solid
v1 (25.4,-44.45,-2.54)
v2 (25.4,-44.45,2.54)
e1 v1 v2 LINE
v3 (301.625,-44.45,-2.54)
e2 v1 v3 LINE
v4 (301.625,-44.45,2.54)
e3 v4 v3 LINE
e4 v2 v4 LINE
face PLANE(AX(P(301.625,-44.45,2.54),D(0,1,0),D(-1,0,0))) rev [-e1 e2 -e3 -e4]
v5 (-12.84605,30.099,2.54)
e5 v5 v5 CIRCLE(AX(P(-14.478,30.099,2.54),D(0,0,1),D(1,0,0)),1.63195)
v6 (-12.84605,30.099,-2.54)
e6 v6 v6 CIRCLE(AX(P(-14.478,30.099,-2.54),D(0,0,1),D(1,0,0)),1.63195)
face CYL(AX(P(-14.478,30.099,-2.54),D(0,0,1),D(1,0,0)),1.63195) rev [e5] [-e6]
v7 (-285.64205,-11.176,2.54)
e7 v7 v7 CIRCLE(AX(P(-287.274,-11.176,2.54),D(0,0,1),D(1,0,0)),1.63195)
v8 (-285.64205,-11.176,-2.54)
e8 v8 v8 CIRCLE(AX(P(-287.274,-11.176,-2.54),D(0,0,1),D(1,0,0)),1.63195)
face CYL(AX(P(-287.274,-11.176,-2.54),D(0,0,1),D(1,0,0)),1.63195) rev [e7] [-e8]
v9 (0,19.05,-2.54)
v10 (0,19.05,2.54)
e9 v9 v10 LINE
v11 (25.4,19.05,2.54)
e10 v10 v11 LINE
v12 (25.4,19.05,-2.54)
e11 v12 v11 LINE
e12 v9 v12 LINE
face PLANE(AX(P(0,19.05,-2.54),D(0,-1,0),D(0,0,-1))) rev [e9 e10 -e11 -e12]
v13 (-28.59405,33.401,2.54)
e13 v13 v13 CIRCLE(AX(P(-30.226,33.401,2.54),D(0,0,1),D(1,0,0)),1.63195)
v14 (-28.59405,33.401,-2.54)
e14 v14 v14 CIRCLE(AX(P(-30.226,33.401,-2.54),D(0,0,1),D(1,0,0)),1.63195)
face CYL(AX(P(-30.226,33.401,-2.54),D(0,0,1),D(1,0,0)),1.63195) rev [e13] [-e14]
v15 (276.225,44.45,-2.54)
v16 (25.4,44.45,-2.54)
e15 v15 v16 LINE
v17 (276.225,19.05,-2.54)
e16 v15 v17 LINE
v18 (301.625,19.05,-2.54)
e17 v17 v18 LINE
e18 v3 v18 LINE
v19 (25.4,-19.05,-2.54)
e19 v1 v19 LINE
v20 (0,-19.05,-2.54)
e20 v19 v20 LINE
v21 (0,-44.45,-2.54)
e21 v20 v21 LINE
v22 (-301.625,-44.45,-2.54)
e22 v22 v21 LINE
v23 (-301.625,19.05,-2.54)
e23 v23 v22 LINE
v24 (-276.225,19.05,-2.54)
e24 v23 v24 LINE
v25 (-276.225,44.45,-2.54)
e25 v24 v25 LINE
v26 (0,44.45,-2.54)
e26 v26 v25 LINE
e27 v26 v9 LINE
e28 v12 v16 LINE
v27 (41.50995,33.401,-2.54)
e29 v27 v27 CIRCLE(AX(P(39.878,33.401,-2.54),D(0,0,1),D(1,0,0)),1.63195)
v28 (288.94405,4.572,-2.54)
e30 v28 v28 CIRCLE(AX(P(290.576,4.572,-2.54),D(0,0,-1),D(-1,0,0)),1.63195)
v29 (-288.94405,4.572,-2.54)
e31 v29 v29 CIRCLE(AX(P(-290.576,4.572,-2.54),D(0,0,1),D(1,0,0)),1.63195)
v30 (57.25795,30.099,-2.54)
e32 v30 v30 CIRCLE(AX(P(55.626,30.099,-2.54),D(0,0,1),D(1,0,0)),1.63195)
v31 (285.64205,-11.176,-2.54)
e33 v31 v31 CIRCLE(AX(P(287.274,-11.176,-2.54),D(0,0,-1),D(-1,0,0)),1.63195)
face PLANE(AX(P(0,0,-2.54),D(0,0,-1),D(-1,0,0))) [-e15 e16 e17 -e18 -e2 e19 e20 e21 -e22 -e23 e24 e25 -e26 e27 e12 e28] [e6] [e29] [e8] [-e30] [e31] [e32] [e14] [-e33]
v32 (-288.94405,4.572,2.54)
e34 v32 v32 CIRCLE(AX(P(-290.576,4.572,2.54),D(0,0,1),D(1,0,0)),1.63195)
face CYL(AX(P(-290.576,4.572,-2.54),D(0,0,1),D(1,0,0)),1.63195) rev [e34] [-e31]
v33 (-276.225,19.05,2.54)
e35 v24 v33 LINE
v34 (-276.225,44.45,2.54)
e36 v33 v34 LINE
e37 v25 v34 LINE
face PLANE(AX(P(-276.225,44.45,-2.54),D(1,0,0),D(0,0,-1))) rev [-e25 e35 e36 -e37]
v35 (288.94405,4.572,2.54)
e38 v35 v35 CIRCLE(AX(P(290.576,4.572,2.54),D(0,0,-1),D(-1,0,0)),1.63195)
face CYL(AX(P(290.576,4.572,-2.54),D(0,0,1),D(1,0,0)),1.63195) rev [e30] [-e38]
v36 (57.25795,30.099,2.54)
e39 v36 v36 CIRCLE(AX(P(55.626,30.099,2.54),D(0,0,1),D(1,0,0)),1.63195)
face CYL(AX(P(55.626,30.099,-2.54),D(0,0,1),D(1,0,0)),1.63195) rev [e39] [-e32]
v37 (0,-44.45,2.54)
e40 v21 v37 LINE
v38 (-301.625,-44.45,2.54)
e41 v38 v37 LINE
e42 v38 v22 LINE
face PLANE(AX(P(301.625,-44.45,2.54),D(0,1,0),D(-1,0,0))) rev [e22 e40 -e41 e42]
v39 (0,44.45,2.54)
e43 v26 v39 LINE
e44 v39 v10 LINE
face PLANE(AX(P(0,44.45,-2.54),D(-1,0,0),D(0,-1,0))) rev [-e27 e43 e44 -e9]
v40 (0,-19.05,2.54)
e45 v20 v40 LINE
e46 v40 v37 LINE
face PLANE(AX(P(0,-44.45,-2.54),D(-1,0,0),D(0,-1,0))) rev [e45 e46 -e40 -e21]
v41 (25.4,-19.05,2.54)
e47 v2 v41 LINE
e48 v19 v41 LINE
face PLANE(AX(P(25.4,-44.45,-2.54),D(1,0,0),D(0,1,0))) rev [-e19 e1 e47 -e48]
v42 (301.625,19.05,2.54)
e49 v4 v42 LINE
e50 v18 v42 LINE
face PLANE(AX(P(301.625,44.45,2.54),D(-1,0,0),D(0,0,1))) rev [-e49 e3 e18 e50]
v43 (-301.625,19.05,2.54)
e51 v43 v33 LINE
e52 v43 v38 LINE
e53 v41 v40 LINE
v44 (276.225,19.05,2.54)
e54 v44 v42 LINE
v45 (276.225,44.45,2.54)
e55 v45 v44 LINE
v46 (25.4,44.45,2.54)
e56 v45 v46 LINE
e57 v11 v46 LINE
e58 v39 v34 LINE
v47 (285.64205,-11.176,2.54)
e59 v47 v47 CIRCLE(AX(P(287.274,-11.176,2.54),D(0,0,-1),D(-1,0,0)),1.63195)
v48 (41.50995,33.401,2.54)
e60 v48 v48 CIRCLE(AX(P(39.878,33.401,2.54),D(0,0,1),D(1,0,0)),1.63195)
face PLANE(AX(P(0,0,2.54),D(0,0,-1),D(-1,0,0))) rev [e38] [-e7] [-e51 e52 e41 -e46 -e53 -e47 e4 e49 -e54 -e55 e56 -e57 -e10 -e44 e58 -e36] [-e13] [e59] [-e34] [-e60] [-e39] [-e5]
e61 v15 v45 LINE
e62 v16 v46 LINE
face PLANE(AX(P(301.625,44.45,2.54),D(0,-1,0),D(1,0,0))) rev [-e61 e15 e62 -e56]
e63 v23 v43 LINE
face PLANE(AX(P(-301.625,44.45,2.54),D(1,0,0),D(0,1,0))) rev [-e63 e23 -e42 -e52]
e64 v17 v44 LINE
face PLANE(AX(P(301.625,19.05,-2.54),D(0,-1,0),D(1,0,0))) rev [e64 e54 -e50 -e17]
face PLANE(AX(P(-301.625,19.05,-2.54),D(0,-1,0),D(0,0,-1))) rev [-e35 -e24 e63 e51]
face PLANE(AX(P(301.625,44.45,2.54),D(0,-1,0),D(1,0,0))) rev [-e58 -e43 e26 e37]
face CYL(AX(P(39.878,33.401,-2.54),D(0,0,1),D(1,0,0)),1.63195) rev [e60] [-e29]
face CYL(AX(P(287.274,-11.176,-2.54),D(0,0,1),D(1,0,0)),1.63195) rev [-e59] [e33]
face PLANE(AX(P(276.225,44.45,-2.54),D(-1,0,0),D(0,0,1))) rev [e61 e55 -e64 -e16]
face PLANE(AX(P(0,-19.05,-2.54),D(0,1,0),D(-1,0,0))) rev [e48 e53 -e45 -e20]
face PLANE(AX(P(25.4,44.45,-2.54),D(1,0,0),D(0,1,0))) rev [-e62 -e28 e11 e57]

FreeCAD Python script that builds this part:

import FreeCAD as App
import Part
import Sketcher
Q = App.Units.Quantity


def add_polygon(sketch, points):
    """Adds a closed chain of lines whose ends are joined by coincident constraints."""
    first, n = sketch.GeometryCount, len(points)
    for a, b in zip(points, points[1:] + points[:1]):
        sketch.addGeometry(Part.LineSegment(App.Vector(*a, 0), App.Vector(*b, 0)), False)
    for i in range(n):
        sketch.addConstraint(Sketcher.Constraint("Coincident", first + i, 2, first + (i + 1) % n, 1))

doc = App.newDocument("Part")
params = doc.addObject("Spreadsheet::Sheet", "Params")
for row, (alias, value) in enumerate([
    ("sketch1_height", "3.5 in"),
    ("sketch1_width", "23.75 in"),
    ("pad1_length", "0.2 in"),
    ("sketch2_width", "1 in"),
    ("pocket1_length", "0.2 in"),
    ("pocket2_length", "0.2 in"),
    ("pocket3_length", "0.2 in"),
    ("linearpattern_pitch", "2.76 in"),
], start=1):
    params.set(f"A{row}", alias)
    params.set(f"B{row}", "=" + value)
    params.setAlias(f"B{row}", alias)

body = doc.addObject("PartDesign::Body", "Body")

# Sketch on XY plane
sketch1 = body.newObject("Sketcher::SketchObject", "Sketch")
sketch1.AttachmentSupport = (doc.getObject("XY_Plane"), [""])
sketch1.MapMode = "FlatFace"
add_polygon(sketch1, [(-301.625, 44.45), (-301.625, -44.45), (301.625, -44.45), (301.625, 44.45)])  # lines 0-3
sketch1.addConstraint(Sketcher.Constraint("Vertical", 0))
sketch1.addConstraint(Sketcher.Constraint("Horizontal", 1))
sketch1.addConstraint(Sketcher.Constraint("Vertical", 2))
sketch1.addConstraint(Sketcher.Constraint("Horizontal", 3))
sketch1.addConstraint(Sketcher.Constraint("Symmetric", 0, 2, 2, 2, -1, 1))
sketch1.addConstraint(Sketcher.Constraint("DistanceY", 0, 2, 0, 1, Q("3.5 in")))
sketch1.addConstraint(Sketcher.Constraint("DistanceX", 1, 1, 1, 2, Q("23.75 in")))
sketch1.setExpression("Constraints[9]", "Params.sketch1_height")
sketch1.setExpression("Constraints[10]", "Params.sketch1_width")
pad1 = body.newObject("PartDesign::Pad", "Pad")
pad1.Profile = sketch1
pad1.setExpression("Length", "Params.pad1_length")
pad1.Midplane = True

# Sketch on XY plane
sketch2 = body.newObject("Sketcher::SketchObject", "Sketch001")
sketch2.AttachmentSupport = (doc.getObject("XY_Plane"), [""])
sketch2.MapMode = "FlatFace"
sketch2.AttachmentOffset = App.Placement(App.Vector(0, 0, 0.1 * 25.4), App.Rotation())
add_polygon(sketch2, [(-301.625, 44.45), (-301.625, 19.05), (-276.225, 19.05), (-276.225, 44.45)])  # lines 0-3
add_polygon(sketch2, [(276.225, 44.45), (276.225, 19.05), (301.625, 19.05), (301.625, 44.45)])  # lines 4-7
add_polygon(sketch2, [(0, 44.45), (0, 19.05), (25.4, 19.05), (25.4, 44.45)])  # lines 8-11
add_polygon(sketch2, [(0, -19.05), (0, -44.45), (25.4, -44.45), (25.4, -19.05)])  # lines 12-15
sketch2.addConstraint(Sketcher.Constraint("Vertical", 0))
sketch2.addConstraint(Sketcher.Constraint("Horizontal", 1))
sketch2.addConstraint(Sketcher.Constraint("Vertical", 2))
sketch2.addConstraint(Sketcher.Constraint("Horizontal", 3))
sketch2.addConstraint(Sketcher.Constraint("Vertical", 4))
sketch2.addConstraint(Sketcher.Constraint("Horizontal", 5))
sketch2.addConstraint(Sketcher.Constraint("Vertical", 6))
sketch2.addConstraint(Sketcher.Constraint("Horizontal", 7))
sketch2.addConstraint(Sketcher.Constraint("Vertical", 8))
sketch2.addConstraint(Sketcher.Constraint("Horizontal", 9))
sketch2.addConstraint(Sketcher.Constraint("Vertical", 10))
sketch2.addConstraint(Sketcher.Constraint("Horizontal", 11))
sketch2.addConstraint(Sketcher.Constraint("Vertical", 12))
sketch2.addConstraint(Sketcher.Constraint("Horizontal", 13))
sketch2.addConstraint(Sketcher.Constraint("Vertical", 14))
sketch2.addConstraint(Sketcher.Constraint("Horizontal", 15))
sketch2.addConstraint(Sketcher.Constraint("Symmetric", 11, 2, 12, 2, -1, 1))
sketch2.addConstraint(Sketcher.Constraint("Symmetric", 1, 2, 4, 2, -2))
sketch2.addConstraint(Sketcher.Constraint("Symmetric", 3, 2, 6, 2, -2))
sketch2.addConstraint(Sketcher.Constraint("Symmetric", 9, 2, 14, 2, -1))
sketch2.addConstraint(Sketcher.Constraint("PointOnObject", 8, 2, -2))
sketch2.addConstraint(Sketcher.Constraint("Horizontal", 5, 2, 8, 2))
sketch2.addConstraint(Sketcher.Constraint("Horizontal", 7, 2, 10, 2))
sketch2.addConstraint(Sketcher.Constraint("Equal", 7, 9))
sketch2.addConstraint(Sketcher.Constraint("Equal", 15, 0))
sketch2.addConstraint(Sketcher.Constraint("DistanceX", 1, 1, 1, 2, Q("1 in")))
sketch2.addConstraint(Sketcher.Constraint("DistanceY", 12, 2, 8, 2, Q("2.5 in")))
sketch2.addConstraint(Sketcher.Constraint("DistanceX", 1, 2, 4, 2, Q("21.75 in")))
sketch2.setExpression("Constraints[41]", "Params.sketch2_width")
pocket1 = body.newObject("PartDesign::Pocket", "Pocket")
pocket1.Profile = sketch2
pocket1.setExpression("Length", "Params.pocket1_length")

# Sketch on XY plane
sketch3 = body.newObject("Sketcher::SketchObject", "Sketch002")
sketch3.AttachmentSupport = (doc.getObject("XY_Plane"), [""])
sketch3.MapMode = "FlatFace"
sketch3.AttachmentOffset = App.Placement(App.Vector(0, 0, 0.1 * 25.4), App.Rotation())
sketch3.addGeometry(Part.Circle(App.Vector(-14.478, 30.099, 0), App.Vector(0, 0, 1), 1.63195), False)
sketch3.addGeometry(Part.Circle(App.Vector(-30.226, 33.401, 0), App.Vector(0, 0, 1), 1.63195), False)
sketch3.addConstraint(Sketcher.Constraint("Equal", 0, 1))
sketch3.addConstraint(Sketcher.Constraint("Diameter", 0, Q("0.1285 in")))
sketch3.addConstraint(Sketcher.Constraint("DistanceX", 0, 3, -1, 1, Q("0.57 in")))
sketch3.addConstraint(Sketcher.Constraint("DistanceX", 1, 3, -1, 1, Q("1.19 in")))
sketch3.addConstraint(Sketcher.Constraint("DistanceY", 0, 3, 1, 3, Q("0.13 in")))
sketch3.addConstraint(Sketcher.Constraint("DistanceY", -1, 1, 0, 3, Q("1.185 in")))
pocket2 = body.newObject("PartDesign::Pocket", "Pocket001")
pocket2.Profile = sketch3
pocket2.setExpression("Length", "Params.pocket2_length")

# Sketch on XY plane
sketch4 = body.newObject("Sketcher::SketchObject", "Sketch003")
sketch4.AttachmentSupport = (doc.getObject("XY_Plane"), [""])
sketch4.MapMode = "FlatFace"
sketch4.AttachmentOffset = App.Placement(App.Vector(0, 0, 0.1 * 25.4), App.Rotation())
sketch4.addGeometry(Part.Circle(App.Vector(-290.576, 4.572, 0), App.Vector(0, 0, 1), 1.63195), False)
sketch4.addGeometry(Part.Circle(App.Vector(-287.274, -11.176, 0), App.Vector(0, 0, 1), 1.63195), False)
sketch4.addConstraint(Sketcher.Constraint("Equal", 0, 1))
sketch4.addConstraint(Sketcher.Constraint("Diameter", 0, Q("0.1285 in")))
sketch4.addConstraint(Sketcher.Constraint("DistanceX", 0, 3, -1, 1, Q("11.44 in")))
sketch4.addConstraint(Sketcher.Constraint("DistanceY", -1, 1, 0, 3, Q("0.18 in")))
sketch4.addConstraint(Sketcher.Constraint("DistanceX", 1, 3, -1, 1, Q("11.31 in")))
sketch4.addConstraint(Sketcher.Constraint("DistanceY", 1, 3, -1, 1, Q("0.44 in")))
pocket3 = body.newObject("PartDesign::Pocket", "Pocket002")
pocket3.Profile = sketch4
pocket3.setExpression("Length", "Params.pocket3_length")
doc.recompute()

mirrored = body.newObject("PartDesign::Mirrored", "Mirrored")
mirrored.Originals = [pocket3]
mirrored.MirrorPlane = (doc.getObject("YZ_Plane"), [""])
body.Tip = mirrored
doc.recompute()

linearpattern = body.newObject("PartDesign::LinearPattern", "LinearPattern")
linearpattern.Originals = [pocket2]
linearpattern.Direction = (doc.getObject("X_Axis"), [""])
linearpattern.Mode = "offset"
linearpattern.setExpression("Offset", "Params.linearpattern_pitch")
linearpattern.Occurrences = 2
body.Tip = linearpattern

doc.recompute()
